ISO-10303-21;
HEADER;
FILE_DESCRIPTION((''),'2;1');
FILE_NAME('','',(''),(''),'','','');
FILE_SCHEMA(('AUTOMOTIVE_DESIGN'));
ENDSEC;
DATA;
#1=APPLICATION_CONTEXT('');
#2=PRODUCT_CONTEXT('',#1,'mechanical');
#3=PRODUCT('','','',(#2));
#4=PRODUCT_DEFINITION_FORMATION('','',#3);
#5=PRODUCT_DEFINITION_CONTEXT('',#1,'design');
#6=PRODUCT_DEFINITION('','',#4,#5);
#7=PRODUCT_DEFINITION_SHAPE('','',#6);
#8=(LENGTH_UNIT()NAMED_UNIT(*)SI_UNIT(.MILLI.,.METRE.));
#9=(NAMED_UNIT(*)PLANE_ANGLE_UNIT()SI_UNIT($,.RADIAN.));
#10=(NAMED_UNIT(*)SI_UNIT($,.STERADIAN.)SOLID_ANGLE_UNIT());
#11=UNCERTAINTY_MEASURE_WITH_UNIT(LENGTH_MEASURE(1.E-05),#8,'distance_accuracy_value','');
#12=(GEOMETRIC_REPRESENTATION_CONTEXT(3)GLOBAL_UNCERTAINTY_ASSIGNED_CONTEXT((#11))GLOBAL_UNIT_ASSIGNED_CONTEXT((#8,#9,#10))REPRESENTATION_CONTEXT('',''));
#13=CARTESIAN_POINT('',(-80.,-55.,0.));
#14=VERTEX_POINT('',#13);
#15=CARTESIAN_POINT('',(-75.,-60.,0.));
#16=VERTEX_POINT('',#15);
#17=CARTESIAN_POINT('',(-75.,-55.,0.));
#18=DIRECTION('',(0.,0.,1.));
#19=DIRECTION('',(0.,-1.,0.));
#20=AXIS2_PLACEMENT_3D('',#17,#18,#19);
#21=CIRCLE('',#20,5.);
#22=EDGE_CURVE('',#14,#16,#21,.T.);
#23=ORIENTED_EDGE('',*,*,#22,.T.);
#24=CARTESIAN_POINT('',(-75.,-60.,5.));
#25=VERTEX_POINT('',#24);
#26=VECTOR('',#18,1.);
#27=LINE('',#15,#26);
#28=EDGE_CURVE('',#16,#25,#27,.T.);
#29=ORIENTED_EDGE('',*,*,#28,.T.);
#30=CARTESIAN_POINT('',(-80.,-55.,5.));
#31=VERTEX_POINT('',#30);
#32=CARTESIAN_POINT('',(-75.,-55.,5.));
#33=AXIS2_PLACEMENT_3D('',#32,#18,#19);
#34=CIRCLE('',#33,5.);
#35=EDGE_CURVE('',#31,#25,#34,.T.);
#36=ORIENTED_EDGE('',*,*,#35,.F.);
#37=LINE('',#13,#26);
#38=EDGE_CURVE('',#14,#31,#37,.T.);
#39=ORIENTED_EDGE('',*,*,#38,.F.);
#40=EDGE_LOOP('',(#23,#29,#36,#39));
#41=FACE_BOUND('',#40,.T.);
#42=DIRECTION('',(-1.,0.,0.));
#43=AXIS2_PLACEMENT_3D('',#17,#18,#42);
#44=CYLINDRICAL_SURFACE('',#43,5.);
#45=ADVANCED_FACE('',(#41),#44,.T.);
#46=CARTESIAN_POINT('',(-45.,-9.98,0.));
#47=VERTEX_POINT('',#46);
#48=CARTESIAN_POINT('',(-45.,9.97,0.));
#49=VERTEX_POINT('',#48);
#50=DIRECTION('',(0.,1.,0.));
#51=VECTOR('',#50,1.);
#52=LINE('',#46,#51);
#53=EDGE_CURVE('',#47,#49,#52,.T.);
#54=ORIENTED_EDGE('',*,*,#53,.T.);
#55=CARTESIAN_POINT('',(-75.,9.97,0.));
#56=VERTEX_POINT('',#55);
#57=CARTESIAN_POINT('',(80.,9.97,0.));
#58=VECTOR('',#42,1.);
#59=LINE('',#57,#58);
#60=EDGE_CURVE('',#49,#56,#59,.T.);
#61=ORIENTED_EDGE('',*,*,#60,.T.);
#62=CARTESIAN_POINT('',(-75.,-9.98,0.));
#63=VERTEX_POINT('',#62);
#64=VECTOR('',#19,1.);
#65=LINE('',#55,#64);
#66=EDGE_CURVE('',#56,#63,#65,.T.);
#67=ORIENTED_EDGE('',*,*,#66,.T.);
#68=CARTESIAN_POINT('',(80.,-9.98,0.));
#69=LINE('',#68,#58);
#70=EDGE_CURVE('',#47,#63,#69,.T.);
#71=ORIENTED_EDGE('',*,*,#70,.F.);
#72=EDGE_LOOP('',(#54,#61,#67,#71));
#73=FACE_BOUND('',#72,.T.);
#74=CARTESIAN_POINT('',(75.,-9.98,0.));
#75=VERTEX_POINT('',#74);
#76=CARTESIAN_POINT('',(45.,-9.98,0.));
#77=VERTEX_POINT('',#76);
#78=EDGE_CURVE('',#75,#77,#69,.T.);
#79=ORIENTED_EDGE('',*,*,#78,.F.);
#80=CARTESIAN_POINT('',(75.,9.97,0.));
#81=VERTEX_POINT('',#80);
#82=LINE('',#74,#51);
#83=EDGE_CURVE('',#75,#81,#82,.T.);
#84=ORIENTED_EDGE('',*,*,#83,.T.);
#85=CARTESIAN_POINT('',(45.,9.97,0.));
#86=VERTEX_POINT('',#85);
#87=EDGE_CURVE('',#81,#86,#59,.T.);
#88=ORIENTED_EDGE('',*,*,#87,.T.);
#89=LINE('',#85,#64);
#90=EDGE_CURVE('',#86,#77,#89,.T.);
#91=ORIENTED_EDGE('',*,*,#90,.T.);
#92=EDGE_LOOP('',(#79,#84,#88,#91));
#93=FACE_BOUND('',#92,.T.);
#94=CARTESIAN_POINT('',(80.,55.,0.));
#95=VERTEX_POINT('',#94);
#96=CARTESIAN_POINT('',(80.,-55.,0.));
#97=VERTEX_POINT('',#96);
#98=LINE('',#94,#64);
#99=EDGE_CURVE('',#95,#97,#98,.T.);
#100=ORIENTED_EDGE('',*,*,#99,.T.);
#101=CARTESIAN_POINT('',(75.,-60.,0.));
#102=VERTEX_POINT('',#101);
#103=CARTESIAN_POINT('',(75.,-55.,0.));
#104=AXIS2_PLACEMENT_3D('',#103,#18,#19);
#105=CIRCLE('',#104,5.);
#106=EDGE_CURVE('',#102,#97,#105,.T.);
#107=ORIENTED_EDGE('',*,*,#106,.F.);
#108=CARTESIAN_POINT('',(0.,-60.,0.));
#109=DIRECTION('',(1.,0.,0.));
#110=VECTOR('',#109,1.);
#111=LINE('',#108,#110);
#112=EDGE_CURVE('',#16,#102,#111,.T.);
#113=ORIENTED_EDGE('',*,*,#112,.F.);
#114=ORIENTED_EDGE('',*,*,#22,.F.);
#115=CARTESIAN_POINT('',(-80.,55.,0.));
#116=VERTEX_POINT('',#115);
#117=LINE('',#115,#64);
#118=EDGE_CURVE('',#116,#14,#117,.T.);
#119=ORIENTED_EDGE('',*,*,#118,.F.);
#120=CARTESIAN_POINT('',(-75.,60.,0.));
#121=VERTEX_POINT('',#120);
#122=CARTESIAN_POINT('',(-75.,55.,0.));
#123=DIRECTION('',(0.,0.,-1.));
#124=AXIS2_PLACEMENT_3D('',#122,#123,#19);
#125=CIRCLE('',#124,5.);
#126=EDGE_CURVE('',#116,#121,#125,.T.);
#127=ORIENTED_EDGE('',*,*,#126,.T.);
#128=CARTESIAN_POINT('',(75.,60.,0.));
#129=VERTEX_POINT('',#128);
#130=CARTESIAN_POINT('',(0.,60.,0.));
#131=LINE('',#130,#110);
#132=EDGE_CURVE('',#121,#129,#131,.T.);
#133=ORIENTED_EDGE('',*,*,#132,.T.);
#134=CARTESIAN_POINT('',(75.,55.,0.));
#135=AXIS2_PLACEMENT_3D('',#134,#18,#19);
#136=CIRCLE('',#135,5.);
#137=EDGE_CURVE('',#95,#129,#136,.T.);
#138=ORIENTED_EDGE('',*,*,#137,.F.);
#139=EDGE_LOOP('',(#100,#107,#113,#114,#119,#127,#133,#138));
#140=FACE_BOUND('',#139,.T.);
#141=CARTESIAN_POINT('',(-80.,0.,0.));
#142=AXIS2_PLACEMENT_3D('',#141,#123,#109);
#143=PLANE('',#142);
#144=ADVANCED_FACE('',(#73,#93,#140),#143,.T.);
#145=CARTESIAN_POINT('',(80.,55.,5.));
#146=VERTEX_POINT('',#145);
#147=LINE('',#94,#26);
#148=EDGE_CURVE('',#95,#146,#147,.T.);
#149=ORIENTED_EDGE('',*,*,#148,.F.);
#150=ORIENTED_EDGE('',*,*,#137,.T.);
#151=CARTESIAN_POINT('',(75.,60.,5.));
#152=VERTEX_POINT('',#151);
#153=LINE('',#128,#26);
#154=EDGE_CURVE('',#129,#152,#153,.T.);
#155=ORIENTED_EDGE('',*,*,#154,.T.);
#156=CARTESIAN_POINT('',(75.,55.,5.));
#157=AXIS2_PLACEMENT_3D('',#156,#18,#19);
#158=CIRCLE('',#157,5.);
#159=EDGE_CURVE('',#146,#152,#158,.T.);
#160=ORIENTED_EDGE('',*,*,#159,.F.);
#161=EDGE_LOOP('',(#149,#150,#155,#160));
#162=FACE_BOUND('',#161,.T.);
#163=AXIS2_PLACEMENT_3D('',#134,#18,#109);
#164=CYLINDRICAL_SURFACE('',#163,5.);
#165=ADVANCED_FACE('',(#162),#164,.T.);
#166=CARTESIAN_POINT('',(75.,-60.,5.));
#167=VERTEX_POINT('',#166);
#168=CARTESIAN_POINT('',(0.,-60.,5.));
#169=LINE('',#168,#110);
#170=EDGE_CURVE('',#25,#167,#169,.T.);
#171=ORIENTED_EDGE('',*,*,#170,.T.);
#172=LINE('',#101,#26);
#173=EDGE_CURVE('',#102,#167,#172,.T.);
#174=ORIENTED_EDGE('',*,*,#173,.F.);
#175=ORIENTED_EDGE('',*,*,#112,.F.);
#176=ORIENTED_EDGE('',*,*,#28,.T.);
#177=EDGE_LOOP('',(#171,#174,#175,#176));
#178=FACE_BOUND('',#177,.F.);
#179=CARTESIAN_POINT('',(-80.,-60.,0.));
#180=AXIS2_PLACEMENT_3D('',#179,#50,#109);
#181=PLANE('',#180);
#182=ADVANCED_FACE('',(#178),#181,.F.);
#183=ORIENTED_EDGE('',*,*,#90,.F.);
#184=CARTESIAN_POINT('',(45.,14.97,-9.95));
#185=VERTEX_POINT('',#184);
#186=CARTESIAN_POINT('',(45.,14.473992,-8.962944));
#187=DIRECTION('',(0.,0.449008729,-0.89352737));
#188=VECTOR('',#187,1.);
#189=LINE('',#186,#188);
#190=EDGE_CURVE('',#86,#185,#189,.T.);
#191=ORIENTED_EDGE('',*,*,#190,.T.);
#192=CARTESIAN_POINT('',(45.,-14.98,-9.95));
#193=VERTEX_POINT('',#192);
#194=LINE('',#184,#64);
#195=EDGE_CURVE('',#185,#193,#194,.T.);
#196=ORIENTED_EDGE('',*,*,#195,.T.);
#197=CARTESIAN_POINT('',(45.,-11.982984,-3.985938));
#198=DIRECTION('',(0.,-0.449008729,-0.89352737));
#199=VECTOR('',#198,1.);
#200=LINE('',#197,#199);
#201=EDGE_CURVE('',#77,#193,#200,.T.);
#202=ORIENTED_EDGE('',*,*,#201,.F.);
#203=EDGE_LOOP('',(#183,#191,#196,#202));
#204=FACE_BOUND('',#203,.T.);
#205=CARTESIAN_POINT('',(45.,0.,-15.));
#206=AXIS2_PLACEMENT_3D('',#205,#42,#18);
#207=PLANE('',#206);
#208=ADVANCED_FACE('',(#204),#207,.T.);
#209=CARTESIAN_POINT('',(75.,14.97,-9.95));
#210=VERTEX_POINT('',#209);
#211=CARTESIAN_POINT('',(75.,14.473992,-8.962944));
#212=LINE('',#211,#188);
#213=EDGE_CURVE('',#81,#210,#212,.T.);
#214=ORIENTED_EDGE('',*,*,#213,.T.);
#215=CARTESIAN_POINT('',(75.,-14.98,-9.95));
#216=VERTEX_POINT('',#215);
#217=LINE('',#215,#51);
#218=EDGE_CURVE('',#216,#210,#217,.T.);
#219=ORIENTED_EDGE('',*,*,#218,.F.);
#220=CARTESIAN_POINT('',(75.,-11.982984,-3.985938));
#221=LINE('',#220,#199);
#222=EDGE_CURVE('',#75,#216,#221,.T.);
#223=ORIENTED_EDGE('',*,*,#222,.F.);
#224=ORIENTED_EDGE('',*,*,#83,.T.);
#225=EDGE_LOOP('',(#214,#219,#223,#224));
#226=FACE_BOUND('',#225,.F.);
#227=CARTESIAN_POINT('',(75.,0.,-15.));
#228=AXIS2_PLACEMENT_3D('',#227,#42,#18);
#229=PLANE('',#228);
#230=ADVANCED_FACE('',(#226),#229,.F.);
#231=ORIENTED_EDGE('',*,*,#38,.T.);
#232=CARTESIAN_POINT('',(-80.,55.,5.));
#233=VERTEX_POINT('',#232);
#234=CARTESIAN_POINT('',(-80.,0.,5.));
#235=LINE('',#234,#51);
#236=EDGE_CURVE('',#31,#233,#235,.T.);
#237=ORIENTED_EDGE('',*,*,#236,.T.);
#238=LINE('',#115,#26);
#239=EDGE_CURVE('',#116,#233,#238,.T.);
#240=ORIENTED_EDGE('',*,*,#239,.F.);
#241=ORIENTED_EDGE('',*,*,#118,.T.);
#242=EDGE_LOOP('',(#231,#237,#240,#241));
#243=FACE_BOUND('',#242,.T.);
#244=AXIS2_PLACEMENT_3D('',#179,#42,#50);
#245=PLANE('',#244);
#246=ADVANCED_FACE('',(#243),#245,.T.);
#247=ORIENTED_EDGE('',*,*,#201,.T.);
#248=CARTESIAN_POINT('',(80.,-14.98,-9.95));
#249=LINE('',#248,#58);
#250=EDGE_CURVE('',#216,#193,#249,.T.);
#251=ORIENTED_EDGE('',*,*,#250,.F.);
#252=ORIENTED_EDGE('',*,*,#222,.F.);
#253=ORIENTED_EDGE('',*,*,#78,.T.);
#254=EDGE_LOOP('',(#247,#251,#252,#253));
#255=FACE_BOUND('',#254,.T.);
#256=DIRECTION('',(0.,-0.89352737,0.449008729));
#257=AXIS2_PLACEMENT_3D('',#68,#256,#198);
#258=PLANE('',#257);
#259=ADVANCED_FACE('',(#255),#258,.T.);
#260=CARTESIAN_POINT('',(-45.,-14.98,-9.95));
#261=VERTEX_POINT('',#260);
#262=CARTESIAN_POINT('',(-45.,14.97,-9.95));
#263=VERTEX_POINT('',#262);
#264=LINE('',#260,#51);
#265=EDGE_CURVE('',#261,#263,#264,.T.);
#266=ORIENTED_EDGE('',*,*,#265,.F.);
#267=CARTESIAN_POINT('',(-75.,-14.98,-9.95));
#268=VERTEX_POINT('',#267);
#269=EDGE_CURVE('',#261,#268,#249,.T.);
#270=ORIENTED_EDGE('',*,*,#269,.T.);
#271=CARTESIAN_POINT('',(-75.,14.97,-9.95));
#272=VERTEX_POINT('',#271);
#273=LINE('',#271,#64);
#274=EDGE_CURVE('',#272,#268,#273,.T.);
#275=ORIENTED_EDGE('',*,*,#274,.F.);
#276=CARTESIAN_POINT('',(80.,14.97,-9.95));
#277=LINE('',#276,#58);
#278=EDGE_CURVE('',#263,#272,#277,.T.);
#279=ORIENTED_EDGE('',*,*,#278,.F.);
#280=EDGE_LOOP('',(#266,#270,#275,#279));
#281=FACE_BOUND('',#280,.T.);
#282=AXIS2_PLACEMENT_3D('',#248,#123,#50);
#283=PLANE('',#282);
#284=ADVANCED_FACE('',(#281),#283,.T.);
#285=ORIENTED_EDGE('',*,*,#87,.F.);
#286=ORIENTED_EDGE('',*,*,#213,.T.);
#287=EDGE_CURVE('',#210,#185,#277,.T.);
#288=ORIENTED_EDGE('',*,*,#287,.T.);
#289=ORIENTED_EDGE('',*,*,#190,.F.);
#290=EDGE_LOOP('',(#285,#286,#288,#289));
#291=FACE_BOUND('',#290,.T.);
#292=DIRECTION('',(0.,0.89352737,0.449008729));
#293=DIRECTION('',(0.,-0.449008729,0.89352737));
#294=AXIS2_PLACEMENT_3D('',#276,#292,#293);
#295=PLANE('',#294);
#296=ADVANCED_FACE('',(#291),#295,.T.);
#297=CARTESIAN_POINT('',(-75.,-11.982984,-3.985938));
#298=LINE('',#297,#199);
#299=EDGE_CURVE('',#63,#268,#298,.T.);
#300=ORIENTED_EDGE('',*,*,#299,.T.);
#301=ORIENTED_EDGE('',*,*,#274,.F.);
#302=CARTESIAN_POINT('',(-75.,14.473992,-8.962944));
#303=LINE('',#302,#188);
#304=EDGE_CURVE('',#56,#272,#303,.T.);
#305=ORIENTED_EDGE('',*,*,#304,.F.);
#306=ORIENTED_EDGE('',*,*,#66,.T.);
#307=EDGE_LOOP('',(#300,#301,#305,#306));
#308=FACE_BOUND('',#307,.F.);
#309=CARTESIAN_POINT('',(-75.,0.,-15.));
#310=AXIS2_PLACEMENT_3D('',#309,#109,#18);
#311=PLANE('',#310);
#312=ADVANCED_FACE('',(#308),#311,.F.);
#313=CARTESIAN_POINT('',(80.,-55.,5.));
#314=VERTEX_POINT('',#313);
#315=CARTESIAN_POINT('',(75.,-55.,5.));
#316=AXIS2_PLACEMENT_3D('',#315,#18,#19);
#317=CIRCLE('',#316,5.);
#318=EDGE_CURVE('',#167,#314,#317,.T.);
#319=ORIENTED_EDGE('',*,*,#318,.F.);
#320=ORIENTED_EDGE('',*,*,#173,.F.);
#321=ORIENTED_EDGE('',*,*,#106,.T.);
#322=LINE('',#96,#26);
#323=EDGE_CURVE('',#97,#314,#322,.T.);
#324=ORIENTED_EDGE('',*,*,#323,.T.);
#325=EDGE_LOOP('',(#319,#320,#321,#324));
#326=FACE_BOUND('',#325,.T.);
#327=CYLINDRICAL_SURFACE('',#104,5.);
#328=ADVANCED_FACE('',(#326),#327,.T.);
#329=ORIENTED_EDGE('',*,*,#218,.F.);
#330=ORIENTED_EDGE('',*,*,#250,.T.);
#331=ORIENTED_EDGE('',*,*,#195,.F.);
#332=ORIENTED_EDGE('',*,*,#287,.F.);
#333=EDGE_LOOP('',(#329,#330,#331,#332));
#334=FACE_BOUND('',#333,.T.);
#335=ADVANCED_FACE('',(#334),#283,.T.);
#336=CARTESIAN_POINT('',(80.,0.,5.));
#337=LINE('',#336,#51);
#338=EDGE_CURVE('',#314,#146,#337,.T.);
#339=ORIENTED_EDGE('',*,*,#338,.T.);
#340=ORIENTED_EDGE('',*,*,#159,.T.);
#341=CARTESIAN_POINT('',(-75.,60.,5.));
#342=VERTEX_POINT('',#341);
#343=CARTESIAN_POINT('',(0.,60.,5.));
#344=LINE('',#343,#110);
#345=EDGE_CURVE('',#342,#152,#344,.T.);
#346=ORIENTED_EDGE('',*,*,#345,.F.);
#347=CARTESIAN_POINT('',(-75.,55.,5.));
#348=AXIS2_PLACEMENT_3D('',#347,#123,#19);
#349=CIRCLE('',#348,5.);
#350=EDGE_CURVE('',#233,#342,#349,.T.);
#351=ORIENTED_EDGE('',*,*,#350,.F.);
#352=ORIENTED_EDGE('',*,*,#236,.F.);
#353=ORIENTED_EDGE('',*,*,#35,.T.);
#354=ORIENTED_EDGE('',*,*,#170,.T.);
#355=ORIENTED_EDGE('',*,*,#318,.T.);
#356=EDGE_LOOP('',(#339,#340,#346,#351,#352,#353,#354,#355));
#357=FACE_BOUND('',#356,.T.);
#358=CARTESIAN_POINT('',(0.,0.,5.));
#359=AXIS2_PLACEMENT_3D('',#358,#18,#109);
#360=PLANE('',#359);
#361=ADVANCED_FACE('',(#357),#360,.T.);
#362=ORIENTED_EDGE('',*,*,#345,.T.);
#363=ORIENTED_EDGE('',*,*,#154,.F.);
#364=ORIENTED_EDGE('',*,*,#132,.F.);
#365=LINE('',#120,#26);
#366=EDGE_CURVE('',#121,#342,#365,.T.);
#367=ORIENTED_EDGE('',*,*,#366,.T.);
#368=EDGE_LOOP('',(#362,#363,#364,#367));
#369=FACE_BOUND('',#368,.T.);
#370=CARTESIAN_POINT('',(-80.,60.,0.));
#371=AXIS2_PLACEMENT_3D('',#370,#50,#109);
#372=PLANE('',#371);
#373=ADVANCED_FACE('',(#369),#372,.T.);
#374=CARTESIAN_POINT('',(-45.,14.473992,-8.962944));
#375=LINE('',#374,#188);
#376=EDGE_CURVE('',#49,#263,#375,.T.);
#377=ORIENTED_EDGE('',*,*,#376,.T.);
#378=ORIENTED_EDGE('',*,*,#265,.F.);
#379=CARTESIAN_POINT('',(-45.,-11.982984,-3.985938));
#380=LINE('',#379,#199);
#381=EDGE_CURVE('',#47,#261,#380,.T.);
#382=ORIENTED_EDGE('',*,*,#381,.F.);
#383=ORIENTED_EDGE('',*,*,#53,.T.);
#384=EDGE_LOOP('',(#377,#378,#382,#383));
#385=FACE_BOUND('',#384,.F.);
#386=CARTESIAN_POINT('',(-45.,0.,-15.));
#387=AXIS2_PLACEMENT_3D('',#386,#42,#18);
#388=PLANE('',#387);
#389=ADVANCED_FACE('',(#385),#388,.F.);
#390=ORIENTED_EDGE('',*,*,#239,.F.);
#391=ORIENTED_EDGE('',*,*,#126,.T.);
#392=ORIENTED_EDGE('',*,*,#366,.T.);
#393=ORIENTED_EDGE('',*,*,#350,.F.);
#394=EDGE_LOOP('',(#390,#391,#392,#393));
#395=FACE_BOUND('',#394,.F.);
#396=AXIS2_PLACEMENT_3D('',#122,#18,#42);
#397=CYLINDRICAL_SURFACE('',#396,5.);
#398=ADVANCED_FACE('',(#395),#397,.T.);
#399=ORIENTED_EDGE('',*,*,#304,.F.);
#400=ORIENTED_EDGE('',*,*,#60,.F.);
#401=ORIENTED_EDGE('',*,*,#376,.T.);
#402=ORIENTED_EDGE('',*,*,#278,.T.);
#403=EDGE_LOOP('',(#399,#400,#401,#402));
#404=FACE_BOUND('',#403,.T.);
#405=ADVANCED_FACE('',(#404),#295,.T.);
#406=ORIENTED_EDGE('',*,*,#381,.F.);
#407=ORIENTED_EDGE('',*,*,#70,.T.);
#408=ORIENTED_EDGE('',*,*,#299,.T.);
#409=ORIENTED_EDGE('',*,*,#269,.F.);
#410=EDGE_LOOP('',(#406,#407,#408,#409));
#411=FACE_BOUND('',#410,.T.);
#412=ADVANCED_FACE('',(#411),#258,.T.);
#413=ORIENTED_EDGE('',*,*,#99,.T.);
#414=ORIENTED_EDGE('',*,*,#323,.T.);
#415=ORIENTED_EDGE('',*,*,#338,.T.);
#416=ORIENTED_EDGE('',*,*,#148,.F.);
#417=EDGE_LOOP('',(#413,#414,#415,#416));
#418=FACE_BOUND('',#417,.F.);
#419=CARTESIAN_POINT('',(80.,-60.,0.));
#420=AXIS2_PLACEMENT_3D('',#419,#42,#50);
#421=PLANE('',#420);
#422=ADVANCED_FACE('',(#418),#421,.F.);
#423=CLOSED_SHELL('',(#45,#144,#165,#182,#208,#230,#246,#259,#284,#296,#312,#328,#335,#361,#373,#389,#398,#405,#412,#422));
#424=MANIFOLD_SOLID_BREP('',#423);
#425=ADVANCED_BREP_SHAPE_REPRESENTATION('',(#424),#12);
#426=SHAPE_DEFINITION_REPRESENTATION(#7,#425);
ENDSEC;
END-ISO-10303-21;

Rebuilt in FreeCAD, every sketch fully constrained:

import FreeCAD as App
import Part
import Sketcher


def edges_at(feature, points):
    """Names of the edges that pass closest to the given points."""
    edges = feature.Shape.Edges
    near = lambda p: min(range(len(edges)), key=lambda i: edges[i].distToShape(Part.Vertex(*p))[0])
    return sorted({f"Edge{near(p) + 1}" for p in points})


def add_polygon(sketch, points):
    """Adds a closed chain of lines whose ends are joined by coincident constraints."""
    first, n = sketch.GeometryCount, len(points)
    for a, b in zip(points, points[1:] + points[:1]):
        sketch.addGeometry(Part.LineSegment(App.Vector(*a, 0), App.Vector(*b, 0)), False)
    for i in range(n):
        sketch.addConstraint(Sketcher.Constraint("Coincident", first + i, 2, first + (i + 1) % n, 1))

doc = App.newDocument("Part")
params = doc.addObject("Spreadsheet::Sheet", "Params")
for row, (alias, value) in enumerate([
    ("sketch1_width", "160 mm"),
    ("sketch1_height", "120 mm"),
    ("pad1_length", "5 mm"),
    ("fillet_radius", "5 mm"),
    ("sketch2_width", "19.95 mm"),
    ("pad2_length", "160 mm"),
    ("sketch3_width", "90 mm"),
    ("sketch3_width2", "5 mm"),
    ("sketch3_height", "15 mm"),
], start=1):
    params.set(f"A{row}", alias)
    params.set(f"B{row}", "=" + value)
    params.setAlias(f"B{row}", alias)

body = doc.addObject("PartDesign::Body", "Body")

# Sketch on XY plane
sketch1 = doc.addObject("Sketcher::SketchObject", "Sketch")
body.addObject(sketch1)
sketch1.AttachmentSupport = (doc.XY_Plane, [""])
sketch1.MapMode = "FlatFace"
add_polygon(sketch1, [(-80, 60), (-80, -60), (80, -60), (80, 60)])  # lines 0-3
sketch1.addConstraint([
    Sketcher.Constraint("Vertical", 0),
    Sketcher.Constraint("Horizontal", 1),
    Sketcher.Constraint("Vertical", 2),
    Sketcher.Constraint("Horizontal", 3),
    Sketcher.Constraint("Symmetric", 0, 2, 2, 2, -1, 1),
    Sketcher.Constraint("DistanceX", 1, 1, 1, 2, 160.0),
    Sketcher.Constraint("DistanceY", 0, 2, 0, 1, 120.0),
])
sketch1.setExpression("Constraints[9]", "Params.sketch1_width")
sketch1.setExpression("Constraints[10]", "Params.sketch1_height")
pad1 = doc.addObject("PartDesign::Pad", "Pad")
body.addObject(pad1)
pad1.Profile = sketch1
pad1.setExpression("Length", "Params.pad1_length")
doc.recompute()

fillet = doc.addObject("PartDesign::Fillet", "Fillet")
body.addObject(fillet)
fillet.Base = (pad1, edges_at(pad1, [
    (80, 60, 2.5),
    (80, -60, 2.5),
    (-80, -60, 2.5),
    (-80, 60, 2.5),
]))
fillet.setExpression("Radius", "Params.fillet_radius")

# Sketch on YZ plane
sketch2 = doc.addObject("Sketcher::SketchObject", "Sketch001")
body.addObject(sketch2)
sketch2.AttachmentSupport = (doc.YZ_Plane, [""])
sketch2.MapMode = "FlatFace"
sketch2.AttachmentOffset = App.Placement(App.Vector(0, 0, 80), App.Rotation())
add_polygon(sketch2, [(10, 0), (-10, 0), (-15, -10), (15, -10)])  # lines 0-3
sketch2.addConstraint([
    Sketcher.Constraint("Horizontal", 0),
    Sketcher.Constraint("Horizontal", 2),
    Sketcher.Constraint("PointOnObject", 0, 2, -1),
    Sketcher.Constraint("Equal", 1, 3),
    Sketcher.Constraint("DistanceX", 1, 2, 0, 2, 5.0),
    Sketcher.Constraint("DistanceX", 0, 2, 0, 1, 19.95),
    Sketcher.Constraint("DistanceX", 0, 2, -1, 1, 9.98),
    Sketcher.Constraint("DistanceY", 1, 2, -1, 1, 9.95),
])
sketch2.setExpression("Constraints[9]", "Params.sketch2_width")
pad2 = doc.addObject("PartDesign::Pad", "Pad001")
body.addObject(pad2)
pad2.Profile = sketch2
pad2.setExpression("Length", "Params.pad2_length")
pad2.Reversed = True

# Sketch on XZ plane
sketch3 = doc.addObject("Sketcher::SketchObject", "Sketch002")
body.addObject(sketch3)
sketch3.AttachmentSupport = (doc.XZ_Plane, [""])
sketch3.MapMode = "FlatFace"
add_polygon(sketch3, [(-45, 0), (-45, -15), (45, -15), (45, 0)])  # lines 0-3
add_polygon(sketch3, [(-80, 0), (-80, -15), (-75, -15), (-75, 0)])  # lines 4-7
add_polygon(sketch3, [(75, 0), (75, -15), (80, -15), (80, 0)])  # lines 8-11
sketch3.addConstraint([
    Sketcher.Constraint("Vertical", 0),
    Sketcher.Constraint("Horizontal", 1),
    Sketcher.Constraint("Vertical", 2),
    Sketcher.Constraint("Horizontal", 3),
    Sketcher.Constraint("Vertical", 4),
    Sketcher.Constraint("Horizontal", 5),
    Sketcher.Constraint("Vertical", 6),
    Sketcher.Constraint("Horizontal", 7),
    Sketcher.Constraint("Vertical", 8),
    Sketcher.Constraint("Horizontal", 9),
    Sketcher.Constraint("Vertical", 10),
    Sketcher.Constraint("Horizontal", 11),
    Sketcher.Constraint("Symmetric", 2, 2, 3, 2, -1, 1),
    Sketcher.Constraint("Symmetric", 7, 2, 10, 2, -1, 1),
    Sketcher.Constraint("Symmetric", 5, 2, 8, 2, -2),
    Sketcher.Constraint("PointOnObject", 6, 2, -1),
    Sketcher.Constraint("Horizontal", 1, 2, 4, 2),
    Sketcher.Constraint("DistanceX", 1, 1, 1, 2, 90.0),
    Sketcher.Constraint("DistanceX", 5, 1, 5, 2, 5.0),
    Sketcher.Constraint("DistanceY", 0, 2, 0, 1, 15.0),
    Sketcher.Constraint("DistanceX", 4, 2, -1, 1, 80.0),
])
sketch3.setExpression("Constraints[29]", "Params.sketch3_width")
sketch3.setExpression("Constraints[30]", "Params.sketch3_width2")
sketch3.setExpression("Constraints[31]", "Params.sketch3_height")
pocket1 = doc.addObject("PartDesign::Pocket", "Pocket")
body.addObject(pocket1)
pocket1.Profile = sketch3
pocket1.Type = "ThroughAll"
pocket1.Midplane = True

doc.recompute()
